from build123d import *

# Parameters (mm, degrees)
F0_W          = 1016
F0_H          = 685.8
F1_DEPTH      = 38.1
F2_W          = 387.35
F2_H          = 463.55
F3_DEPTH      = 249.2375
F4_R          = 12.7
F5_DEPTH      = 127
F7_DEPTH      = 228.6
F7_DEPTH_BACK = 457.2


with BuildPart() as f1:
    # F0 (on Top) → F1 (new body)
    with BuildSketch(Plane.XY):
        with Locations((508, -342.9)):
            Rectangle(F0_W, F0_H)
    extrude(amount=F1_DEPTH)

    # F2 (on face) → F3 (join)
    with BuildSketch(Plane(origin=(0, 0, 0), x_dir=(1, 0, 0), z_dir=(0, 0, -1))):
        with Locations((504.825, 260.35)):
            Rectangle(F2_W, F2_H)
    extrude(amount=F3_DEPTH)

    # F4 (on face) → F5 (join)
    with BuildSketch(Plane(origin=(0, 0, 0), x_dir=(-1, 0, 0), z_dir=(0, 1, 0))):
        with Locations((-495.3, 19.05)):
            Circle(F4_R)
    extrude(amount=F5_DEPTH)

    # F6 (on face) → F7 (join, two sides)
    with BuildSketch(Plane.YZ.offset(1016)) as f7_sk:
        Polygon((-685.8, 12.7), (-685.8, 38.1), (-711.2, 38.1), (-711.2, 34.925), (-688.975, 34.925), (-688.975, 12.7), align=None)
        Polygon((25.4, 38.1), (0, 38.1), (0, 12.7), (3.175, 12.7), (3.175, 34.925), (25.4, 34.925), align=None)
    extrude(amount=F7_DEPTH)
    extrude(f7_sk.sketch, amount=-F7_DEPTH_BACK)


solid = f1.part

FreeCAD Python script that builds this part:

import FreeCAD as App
import Part
import Sketcher
from FreeCAD import Vector
Q = App.Units.Quantity


def add_polygon(sketch, points):
    """Adds a closed chain of lines whose ends are joined by coincident constraints."""
    first, n = sketch.GeometryCount, len(points)
    for a, b in zip(points, points[1:] + points[:1]):
        sketch.addGeometry(Part.LineSegment(App.Vector(*a, 0), App.Vector(*b, 0)), False)
    for i in range(n):
        sketch.addConstraint(Sketcher.Constraint("Coincident", first + i, 2, first + (i + 1) % n, 1))

doc = App.newDocument("Part")
body = doc.addObject("PartDesign::Body", "Body")

# Sketch on XY plane
sketch1 = body.newObject("Sketcher::SketchObject", "Sketch")
sketch1.AttachmentSupport = (doc.getObject("XY_Plane"), [""])
sketch1.MapMode = "FlatFace"
add_polygon(sketch1, [(0, 0), (0, -686), (1016, -686), (1016, 0)])  # lines 0-3
sketch1.addConstraint([
    Sketcher.Constraint("Vertical", 0),
    Sketcher.Constraint("Horizontal", 1),
    Sketcher.Constraint("Vertical", 2),
    Sketcher.Constraint("Horizontal", 3),
    Sketcher.Constraint("Coincident", 3, 2, -1, 1),
    Sketcher.Constraint("DistanceX", 1, 1, 1, 2, Q("40 in")),
    Sketcher.Constraint("DistanceY", 0, 2, 0, 1, Q("27 in")),
])
pad1 = body.newObject("PartDesign::Pad", "Pad")
pad1.Profile = sketch1
pad1.Length = Q("1.5 in")

# Sketch on XY plane
sketch2 = body.newObject("Sketcher::SketchObject", "Sketch001")
sketch2.AttachmentSupport = (doc.getObject("XY_Plane"), [""])
sketch2.MapMode = "FlatFace"
add_polygon(sketch2, [(311, -492), (311, -29), (698, -29), (698, -492)])  # lines 0-3
sketch2.addConstraint([
    Sketcher.Constraint("Vertical", 0),
    Sketcher.Constraint("Horizontal", 1),
    Sketcher.Constraint("Vertical", 2),
    Sketcher.Constraint("Horizontal", 3),
    Sketcher.Constraint("DistanceX", 1, 1, 1, 2, Q("15.25 in")),
    Sketcher.Constraint("DistanceY", 0, 1, 0, 2, Q("18.25 in")),
    Sketcher.Constraint("DistanceX", -1, 1, 1, 2, Q("27.5 in")),
    Sketcher.Constraint("DistanceY", 0, 2, -1, 1, Q("1.125 in")),
])
pad2 = body.newObject("PartDesign::Pad", "Pad001")
pad2.Profile = sketch2
pad2.Length = Q("9.8125 in")
pad2.Reversed = True

# Sketch on XZ plane
sketch3 = body.newObject("Sketcher::SketchObject", "Sketch002")
sketch3.AttachmentSupport = (doc.getObject("XZ_Plane"), [""])
sketch3.MapMode = "FlatFace"
sketch3.addGeometry(Part.Circle(Vector(495, 19, 0), Vector(0, 0, 1), 13), False)
sketch3.addConstraint([
    Sketcher.Constraint("Diameter", 0, Q("1 in")),
    Sketcher.Constraint("DistanceX", -1, 1, 0, 3, Q("19.5 in")),
    Sketcher.Constraint("DistanceY", -1, 1, 0, 3, Q("0.75 in")),
])
pad3 = body.newObject("PartDesign::Pad", "Pad002")
pad3.Profile = sketch3
pad3.Length = Q("5 in")
pad3.Reversed = True

# Sketch on YZ plane
sketch4 = body.newObject("Sketcher::SketchObject", "Sketch003")
sketch4.AttachmentSupport = (doc.getObject("YZ_Plane"), [""])
sketch4.MapMode = "FlatFace"
sketch4.AttachmentOffset = App.Placement(Vector(0, 0, 40 * 25.4), App.Rotation())
add_polygon(sketch4, [(-685.8, 12.7), (-685.8, 38.1), (-711.2, 38.1), (-711.2, 34.9), (-689, 34.9), (-689, 12.7)])  # lines 0-5
add_polygon(sketch4, [(25.4, 38.1), (0, 38.1), (0, 12.7), (3.2, 12.7), (3.2, 34.9), (25.4, 34.9)])  # lines 6-11
sketch4.addConstraint([
    Sketcher.Constraint("Vertical", 0),
    Sketcher.Constraint("Horizontal", 1),
    Sketcher.Constraint("Vertical", 2),
    Sketcher.Constraint("Horizontal", 3),
    Sketcher.Constraint("Vertical", 4),
    Sketcher.Constraint("Horizontal", 5),
    Sketcher.Constraint("Horizontal", 6),
    Sketcher.Constraint("Vertical", 7),
    Sketcher.Constraint("Horizontal", 8),
    Sketcher.Constraint("Vertical", 9),
    Sketcher.Constraint("Horizontal", 10),
    Sketcher.Constraint("Vertical", 11),
    Sketcher.Constraint("PointOnObject", 6, 2, -2),
    Sketcher.Constraint("Horizontal", 1, 2, 6, 2),
    Sketcher.Constraint("Horizontal", 5, 2, 7, 2),
    Sketcher.Constraint("Horizontal", 3, 2, 9, 2),
    Sketcher.Constraint("Equal", 1, 6),
    Sketcher.Constraint("Equal", 5, 8),
    Sketcher.Constraint("Equal", 6, 0),
    Sketcher.Constraint("Equal", 8, 2),
    Sketcher.Constraint("DistanceX", 1, 2, 1, 1, Q("1 in")),
    Sketcher.Constraint("DistanceX", 0, 2, -1, 1, Q("27 in")),
    Sketcher.Constraint("DistanceY", -1, 1, 0, 2, Q("1.5 in")),
    Sketcher.Constraint("DistanceX", 3, 1, 3, 2, Q("0.875 in")),
])
pad4 = body.newObject("PartDesign::Pad", "Pad003")
pad4.Profile = sketch4
pad4.Type = "TwoLengths"
pad4.Length = Q("9 in")
pad4.Length2 = Q("18 in")

doc.recompute()
